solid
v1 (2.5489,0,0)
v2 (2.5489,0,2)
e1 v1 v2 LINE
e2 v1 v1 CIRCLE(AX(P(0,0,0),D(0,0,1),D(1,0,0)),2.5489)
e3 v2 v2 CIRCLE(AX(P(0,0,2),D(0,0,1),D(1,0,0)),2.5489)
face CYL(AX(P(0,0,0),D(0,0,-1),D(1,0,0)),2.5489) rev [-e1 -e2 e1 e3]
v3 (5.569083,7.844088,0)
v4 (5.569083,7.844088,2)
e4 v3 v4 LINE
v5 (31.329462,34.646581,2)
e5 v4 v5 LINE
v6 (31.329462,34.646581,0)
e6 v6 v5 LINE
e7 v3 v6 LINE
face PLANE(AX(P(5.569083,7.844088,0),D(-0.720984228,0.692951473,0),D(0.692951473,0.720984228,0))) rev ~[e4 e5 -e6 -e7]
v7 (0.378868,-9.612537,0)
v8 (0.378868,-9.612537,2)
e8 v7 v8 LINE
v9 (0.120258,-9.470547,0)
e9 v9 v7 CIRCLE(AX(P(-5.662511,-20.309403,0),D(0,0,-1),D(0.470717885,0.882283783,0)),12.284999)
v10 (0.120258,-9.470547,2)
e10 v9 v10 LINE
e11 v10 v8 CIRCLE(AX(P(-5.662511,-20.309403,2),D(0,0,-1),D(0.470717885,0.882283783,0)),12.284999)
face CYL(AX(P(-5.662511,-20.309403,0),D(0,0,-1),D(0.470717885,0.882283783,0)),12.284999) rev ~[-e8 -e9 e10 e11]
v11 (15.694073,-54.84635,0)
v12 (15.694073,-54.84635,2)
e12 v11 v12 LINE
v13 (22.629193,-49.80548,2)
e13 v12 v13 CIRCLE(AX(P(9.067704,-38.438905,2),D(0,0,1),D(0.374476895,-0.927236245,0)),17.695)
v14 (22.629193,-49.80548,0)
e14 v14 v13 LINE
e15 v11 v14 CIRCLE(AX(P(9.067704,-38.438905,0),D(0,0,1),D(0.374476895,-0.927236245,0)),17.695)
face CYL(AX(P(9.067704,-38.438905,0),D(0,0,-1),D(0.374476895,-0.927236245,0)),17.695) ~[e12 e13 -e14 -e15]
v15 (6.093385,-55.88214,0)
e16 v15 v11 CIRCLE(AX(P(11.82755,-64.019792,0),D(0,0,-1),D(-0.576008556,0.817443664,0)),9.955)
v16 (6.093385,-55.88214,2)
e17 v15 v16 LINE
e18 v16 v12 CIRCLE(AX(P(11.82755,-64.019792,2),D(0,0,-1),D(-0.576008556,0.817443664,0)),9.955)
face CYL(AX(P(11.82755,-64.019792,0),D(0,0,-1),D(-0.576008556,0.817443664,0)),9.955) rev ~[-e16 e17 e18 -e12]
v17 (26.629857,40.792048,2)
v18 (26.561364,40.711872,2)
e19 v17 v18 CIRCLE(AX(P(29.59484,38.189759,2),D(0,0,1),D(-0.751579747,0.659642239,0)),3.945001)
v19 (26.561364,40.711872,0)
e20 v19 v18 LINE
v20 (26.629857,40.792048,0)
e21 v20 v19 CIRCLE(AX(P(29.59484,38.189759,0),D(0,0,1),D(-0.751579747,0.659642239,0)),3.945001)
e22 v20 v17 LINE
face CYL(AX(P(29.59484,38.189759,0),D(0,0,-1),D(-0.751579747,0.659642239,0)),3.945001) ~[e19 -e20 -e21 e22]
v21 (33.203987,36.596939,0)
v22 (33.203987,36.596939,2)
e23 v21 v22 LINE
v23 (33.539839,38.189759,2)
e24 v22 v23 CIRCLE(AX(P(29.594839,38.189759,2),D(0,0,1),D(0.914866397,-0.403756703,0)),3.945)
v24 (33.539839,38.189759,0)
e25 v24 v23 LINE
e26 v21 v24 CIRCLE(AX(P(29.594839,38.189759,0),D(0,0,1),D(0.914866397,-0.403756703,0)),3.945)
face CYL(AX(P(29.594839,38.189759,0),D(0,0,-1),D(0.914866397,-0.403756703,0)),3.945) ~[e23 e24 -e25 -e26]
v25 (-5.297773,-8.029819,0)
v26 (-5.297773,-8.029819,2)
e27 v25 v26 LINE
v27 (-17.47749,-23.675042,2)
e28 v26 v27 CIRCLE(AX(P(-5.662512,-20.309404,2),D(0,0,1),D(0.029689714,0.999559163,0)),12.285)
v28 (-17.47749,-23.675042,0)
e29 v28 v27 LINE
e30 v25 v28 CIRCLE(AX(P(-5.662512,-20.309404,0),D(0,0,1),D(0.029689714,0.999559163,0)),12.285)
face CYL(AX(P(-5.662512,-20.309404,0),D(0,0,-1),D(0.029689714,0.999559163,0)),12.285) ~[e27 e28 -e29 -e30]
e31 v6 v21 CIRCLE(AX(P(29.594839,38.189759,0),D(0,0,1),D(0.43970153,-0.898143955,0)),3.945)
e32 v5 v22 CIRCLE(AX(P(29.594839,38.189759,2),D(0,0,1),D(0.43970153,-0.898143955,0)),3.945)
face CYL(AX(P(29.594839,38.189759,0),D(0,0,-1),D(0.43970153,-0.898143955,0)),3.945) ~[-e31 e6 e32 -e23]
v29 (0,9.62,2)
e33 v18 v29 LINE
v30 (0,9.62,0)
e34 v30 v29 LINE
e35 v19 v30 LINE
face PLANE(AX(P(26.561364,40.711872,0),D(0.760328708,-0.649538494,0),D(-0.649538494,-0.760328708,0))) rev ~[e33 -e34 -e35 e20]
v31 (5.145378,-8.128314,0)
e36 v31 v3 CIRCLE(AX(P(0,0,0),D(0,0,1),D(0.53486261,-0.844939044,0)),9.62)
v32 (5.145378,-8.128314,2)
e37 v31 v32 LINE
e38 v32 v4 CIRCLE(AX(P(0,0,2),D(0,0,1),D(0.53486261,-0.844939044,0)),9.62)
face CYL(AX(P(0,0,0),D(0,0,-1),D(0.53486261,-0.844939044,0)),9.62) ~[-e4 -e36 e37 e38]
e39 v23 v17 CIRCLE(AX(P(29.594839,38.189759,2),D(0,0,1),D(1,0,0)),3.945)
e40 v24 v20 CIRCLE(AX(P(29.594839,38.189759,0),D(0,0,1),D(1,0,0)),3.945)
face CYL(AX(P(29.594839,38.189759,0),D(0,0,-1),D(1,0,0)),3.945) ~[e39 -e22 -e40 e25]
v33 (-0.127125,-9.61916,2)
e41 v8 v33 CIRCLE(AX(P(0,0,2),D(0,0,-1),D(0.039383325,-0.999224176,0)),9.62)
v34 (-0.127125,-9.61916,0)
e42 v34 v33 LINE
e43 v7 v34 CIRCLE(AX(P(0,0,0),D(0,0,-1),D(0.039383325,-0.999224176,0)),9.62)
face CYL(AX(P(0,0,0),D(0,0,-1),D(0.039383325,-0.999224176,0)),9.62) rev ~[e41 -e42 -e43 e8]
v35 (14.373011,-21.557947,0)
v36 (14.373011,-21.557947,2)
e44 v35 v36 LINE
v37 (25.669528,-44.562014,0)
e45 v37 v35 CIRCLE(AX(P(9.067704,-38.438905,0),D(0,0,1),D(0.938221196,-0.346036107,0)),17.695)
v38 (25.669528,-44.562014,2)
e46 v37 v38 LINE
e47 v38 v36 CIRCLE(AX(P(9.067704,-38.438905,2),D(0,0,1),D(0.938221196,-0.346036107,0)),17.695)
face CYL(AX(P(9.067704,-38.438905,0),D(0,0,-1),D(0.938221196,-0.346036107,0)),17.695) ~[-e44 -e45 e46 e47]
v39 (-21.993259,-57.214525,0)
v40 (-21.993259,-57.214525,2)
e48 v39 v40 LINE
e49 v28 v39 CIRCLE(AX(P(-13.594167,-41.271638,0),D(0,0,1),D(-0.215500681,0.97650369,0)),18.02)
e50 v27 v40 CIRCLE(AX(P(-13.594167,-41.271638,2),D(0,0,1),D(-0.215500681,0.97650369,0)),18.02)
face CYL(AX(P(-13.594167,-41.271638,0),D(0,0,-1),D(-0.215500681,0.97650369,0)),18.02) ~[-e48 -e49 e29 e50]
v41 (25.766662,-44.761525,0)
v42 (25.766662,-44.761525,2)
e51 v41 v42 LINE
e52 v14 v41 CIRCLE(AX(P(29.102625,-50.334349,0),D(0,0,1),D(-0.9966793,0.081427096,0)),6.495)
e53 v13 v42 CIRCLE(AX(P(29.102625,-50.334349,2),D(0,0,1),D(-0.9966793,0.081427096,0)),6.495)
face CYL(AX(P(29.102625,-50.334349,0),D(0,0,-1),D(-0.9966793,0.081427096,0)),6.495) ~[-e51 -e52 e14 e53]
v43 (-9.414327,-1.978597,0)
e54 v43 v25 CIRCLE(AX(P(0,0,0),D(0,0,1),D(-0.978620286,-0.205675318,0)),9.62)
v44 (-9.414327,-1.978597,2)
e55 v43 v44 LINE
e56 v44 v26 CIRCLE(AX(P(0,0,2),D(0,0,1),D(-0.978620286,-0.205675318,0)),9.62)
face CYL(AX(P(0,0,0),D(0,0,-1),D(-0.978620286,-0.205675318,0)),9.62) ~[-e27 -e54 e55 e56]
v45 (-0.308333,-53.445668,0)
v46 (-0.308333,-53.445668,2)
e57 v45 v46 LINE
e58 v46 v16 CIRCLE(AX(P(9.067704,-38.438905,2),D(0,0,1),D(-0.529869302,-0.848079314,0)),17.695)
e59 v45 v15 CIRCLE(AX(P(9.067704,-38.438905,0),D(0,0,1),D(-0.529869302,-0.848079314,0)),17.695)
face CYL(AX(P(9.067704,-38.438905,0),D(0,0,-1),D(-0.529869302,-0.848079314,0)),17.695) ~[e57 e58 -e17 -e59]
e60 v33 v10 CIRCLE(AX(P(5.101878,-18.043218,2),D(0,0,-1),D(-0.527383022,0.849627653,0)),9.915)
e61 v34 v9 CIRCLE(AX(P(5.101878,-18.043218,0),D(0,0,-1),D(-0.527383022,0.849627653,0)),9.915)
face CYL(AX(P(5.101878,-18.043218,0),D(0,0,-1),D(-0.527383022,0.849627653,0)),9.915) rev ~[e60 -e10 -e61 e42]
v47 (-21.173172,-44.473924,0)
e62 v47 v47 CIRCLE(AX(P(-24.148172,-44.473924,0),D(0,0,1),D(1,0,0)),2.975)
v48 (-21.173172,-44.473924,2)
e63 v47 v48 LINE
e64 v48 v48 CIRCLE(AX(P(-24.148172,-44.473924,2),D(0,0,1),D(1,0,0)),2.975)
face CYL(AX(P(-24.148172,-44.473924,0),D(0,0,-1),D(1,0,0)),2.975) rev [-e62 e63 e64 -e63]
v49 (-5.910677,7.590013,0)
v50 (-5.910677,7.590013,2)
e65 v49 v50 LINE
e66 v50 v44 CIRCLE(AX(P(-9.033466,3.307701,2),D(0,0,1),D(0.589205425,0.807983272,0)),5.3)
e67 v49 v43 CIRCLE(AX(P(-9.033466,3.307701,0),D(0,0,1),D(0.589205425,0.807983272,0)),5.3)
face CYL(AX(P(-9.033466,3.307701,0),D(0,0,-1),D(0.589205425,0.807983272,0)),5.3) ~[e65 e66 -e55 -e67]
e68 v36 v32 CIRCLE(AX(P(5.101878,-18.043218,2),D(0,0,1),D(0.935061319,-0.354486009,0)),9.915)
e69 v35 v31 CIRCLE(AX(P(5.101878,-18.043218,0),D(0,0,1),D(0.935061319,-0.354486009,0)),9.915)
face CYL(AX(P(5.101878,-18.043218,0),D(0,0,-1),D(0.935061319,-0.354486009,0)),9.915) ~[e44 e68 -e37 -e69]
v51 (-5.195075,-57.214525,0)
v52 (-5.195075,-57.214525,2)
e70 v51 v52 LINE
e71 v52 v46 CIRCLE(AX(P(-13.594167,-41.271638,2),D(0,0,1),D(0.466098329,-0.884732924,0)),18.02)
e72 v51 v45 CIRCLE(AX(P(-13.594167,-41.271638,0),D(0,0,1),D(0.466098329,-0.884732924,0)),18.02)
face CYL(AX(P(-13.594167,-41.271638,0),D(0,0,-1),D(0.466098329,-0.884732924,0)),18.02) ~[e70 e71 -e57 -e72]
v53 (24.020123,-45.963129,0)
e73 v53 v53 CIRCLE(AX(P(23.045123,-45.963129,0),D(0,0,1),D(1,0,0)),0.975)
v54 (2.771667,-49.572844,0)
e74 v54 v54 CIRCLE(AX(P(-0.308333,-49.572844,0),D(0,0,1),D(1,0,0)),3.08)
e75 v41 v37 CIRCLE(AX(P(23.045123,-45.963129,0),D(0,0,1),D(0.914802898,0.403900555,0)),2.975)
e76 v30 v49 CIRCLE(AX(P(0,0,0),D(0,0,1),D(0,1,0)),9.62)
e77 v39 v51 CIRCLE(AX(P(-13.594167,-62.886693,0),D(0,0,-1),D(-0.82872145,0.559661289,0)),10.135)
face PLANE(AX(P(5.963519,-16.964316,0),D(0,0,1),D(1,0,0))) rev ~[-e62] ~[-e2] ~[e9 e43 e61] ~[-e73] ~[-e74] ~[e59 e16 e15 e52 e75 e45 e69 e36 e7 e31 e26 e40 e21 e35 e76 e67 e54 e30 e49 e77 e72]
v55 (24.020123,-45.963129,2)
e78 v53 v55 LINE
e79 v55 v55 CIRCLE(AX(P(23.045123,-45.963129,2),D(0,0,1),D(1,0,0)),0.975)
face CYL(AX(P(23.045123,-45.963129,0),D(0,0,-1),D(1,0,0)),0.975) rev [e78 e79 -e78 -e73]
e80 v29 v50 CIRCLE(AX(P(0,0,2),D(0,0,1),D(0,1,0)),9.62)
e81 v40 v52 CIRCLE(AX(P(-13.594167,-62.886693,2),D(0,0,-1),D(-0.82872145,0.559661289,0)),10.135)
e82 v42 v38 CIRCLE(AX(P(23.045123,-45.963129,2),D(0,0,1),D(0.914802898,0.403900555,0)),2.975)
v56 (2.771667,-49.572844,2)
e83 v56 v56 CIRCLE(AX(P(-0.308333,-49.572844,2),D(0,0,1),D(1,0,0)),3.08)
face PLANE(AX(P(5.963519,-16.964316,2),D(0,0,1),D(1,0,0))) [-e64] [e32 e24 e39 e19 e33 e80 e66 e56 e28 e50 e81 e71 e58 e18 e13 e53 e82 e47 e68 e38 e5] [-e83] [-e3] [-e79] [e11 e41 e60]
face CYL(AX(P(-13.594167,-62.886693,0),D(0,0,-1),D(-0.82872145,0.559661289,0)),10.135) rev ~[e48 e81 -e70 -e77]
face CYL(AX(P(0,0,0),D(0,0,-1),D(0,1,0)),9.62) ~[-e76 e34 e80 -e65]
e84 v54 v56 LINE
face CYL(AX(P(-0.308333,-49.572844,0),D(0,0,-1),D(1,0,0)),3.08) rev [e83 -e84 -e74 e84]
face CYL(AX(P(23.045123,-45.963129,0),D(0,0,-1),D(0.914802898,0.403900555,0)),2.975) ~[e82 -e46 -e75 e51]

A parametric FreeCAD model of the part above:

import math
import FreeCAD as App
import Part
import Sketcher

doc = App.newDocument("Part")
params = doc.addObject("Spreadsheet::Sheet", "Params")
for row, (alias, value) in enumerate([
    ("sketch1_radius", "5.3 mm"),
    ("sketch1_diameter", "5.95 mm"),
    ("sketch1_diameter2", "6.16 mm"),
    ("sketch1_diameter3", "1.95 mm"),
    ("sketch1_radius2", "9.62 mm"),
    ("pad1_length", "2 mm"),
], start=1):
    params.set(f"A{row}", alias)
    params.set(f"B{row}", "=" + value)
    params.setAlias(f"B{row}", alias)

body = doc.addObject("PartDesign::Body", "Body")

# Sketch on XY plane
sketch1 = doc.addObject("Sketcher::SketchObject", "Sketch")
body.addObject(sketch1)
sketch1.AttachmentSupport = (doc.XY_Plane, [""])
sketch1.MapMode = "FlatFace"
sketch1.addGeometry(Part.ArcOfCircle(Part.Circle(App.Vector(0, 0, 0), App.Vector(0, 0, 1), 9.62), math.radians(90), math.radians(127.909465)), False)
sketch1.addGeometry(Part.ArcOfCircle(Part.Circle(App.Vector(-9.033466, 3.307701, 0), App.Vector(0, 0, 1), 5.3), math.radians(53.899357), math.radians(265.879142)), False)
sketch1.addGeometry(Part.ArcOfCircle(Part.Circle(App.Vector(0, 0, 0), App.Vector(0, 0, 1), 9.62), math.radians(-168.130966), math.radians(-123.415331)), False)
sketch1.addGeometry(Part.ArcOfCircle(Part.Circle(App.Vector(-5.662512, -20.309404, 0), App.Vector(0, 0, 1), 12.285), math.radians(88.298655), math.radians(195.900238)), False)
sketch1.addGeometry(Part.ArcOfCircle(Part.Circle(App.Vector(-13.594167, -41.271638, 0), App.Vector(0, 0, 1), 18.02), math.radians(102.444903), math.radians(242.218673)), False)
sketch1.addGeometry(Part.ArcOfCircle(Part.Circle(App.Vector(-13.594167, -62.886693, 0), App.Vector(0, 0, 1), 10.135), math.radians(34.032377), math.radians(145.967623)), False)
sketch1.addGeometry(Part.ArcOfCircle(Part.Circle(App.Vector(-13.594167, -41.271638, 0), App.Vector(0, 0, 1), 18.02), math.radians(-62.218673), math.radians(-42.499546)), False)
sketch1.addGeometry(Part.ArcOfCircle(Part.Circle(App.Vector(9.067704, -38.438905, 0), App.Vector(0, 0, 1), 17.695), math.radians(-121.996625), math.radians(-99.676677)), False)
sketch1.addGeometry(Part.ArcOfCircle(Part.Circle(App.Vector(11.82755, -64.019792, 0), App.Vector(0, 0, 1), 9.955), math.radians(67.145016), math.radians(125.170293)), False)
sketch1.addGeometry(Part.ArcOfCircle(Part.Circle(App.Vector(9.067704, -38.438905, 0), App.Vector(0, 0, 1), 17.695), math.radians(-68.008015), math.radians(-39.968088)), False)
sketch1.addGeometry(Part.ArcOfCircle(Part.Circle(App.Vector(29.102625, -50.334349, 0), App.Vector(0, 0, 1), 6.495), math.radians(175.3294), math.radians(480.905276)), False)
sketch1.addGeometry(Part.ArcOfCircle(Part.Circle(App.Vector(23.045123, -45.963129, 0), App.Vector(0, 0, 1), 2.975), math.radians(23.822249), math.radians(28.096829)), False)
sketch1.addGeometry(Part.ArcOfCircle(Part.Circle(App.Vector(9.067704, -38.438905, 0), App.Vector(0, 0, 1), 17.695), math.radians(-20.245056), math.radians(72.553235)), False)
sketch1.addGeometry(Part.ArcOfCircle(Part.Circle(App.Vector(5.101878, -18.043218, 0), App.Vector(0, 0, 1), 9.915), math.radians(-20.761946), math.radians(89.748623)), False)
sketch1.addGeometry(Part.ArcOfCircle(Part.Circle(App.Vector(0, 0, 0), App.Vector(0, 0, 1), 9.62), math.radians(-57.665406), math.radians(54.626316)), False)
sketch1.addGeometry(Part.LineSegment(App.Vector(5.569083, 7.844088, 0), App.Vector(31.329462, 34.646581, 0)), False)
sketch1.addGeometry(Part.ArcOfCircle(Part.Circle(App.Vector(29.594839, 38.189759, 0), App.Vector(0, 0, 1), 3.945), math.radians(-63.915161), math.radians(-23.813239)), False)
sketch1.addGeometry(Part.ArcOfCircle(Part.Circle(App.Vector(29.594839, 38.189759, 0), App.Vector(0, 0, 1), 3.945), math.radians(-23.813239), math.radians(0)), False)
sketch1.addGeometry(Part.ArcOfCircle(Part.Circle(App.Vector(29.594839, 38.189759, 0), App.Vector(0, 0, 1), 3.945), math.radians(0), math.radians(138.727406)), False)
sketch1.addGeometry(Part.ArcOfCircle(Part.Circle(App.Vector(29.59484, 38.189759, 0), App.Vector(0, 0, 1), 3.945001), math.radians(138.727406), math.radians(140.258963)), False)
sketch1.addGeometry(Part.LineSegment(App.Vector(26.561364, 40.711872, 0), App.Vector(0, 9.62, 0)), False)
sketch1.addGeometry(Part.Circle(App.Vector(-24.148172, -44.473924, 0), App.Vector(0, 0, 1), 2.975), False)
sketch1.addGeometry(Part.Circle(App.Vector(-0.308333, -49.572844, 0), App.Vector(0, 0, 1), 3.08), False)
sketch1.addGeometry(Part.Circle(App.Vector(23.045123, -45.963129, 0), App.Vector(0, 0, 1), 0.975), False)
sketch1.addGeometry(Part.ArcOfCircle(Part.Circle(App.Vector(-5.662511, -20.309403, 0), App.Vector(0, 0, 1), 12.284999), math.radians(60.543097), math.radians(61.919094)), False)
sketch1.addGeometry(Part.ArcOfCircle(Part.Circle(App.Vector(0, 0, 0), App.Vector(0, 0, 1), 9.62), math.radians(-90.757166), math.radians(-87.742918)), False)
sketch1.addGeometry(Part.ArcOfCircle(Part.Circle(App.Vector(5.101878, -18.043218, 0), App.Vector(0, 0, 1), 9.915), math.radians(120.161076), math.radians(121.828806)), False)
sketch1.addGeometry(Part.Circle(App.Vector(0, 0, 0), App.Vector(0, 0, 1), 2.5489), False)
sketch1.addConstraint(Sketcher.Constraint("Coincident", 0, 2, 1, 1))
sketch1.addConstraint(Sketcher.Constraint("Coincident", 1, 2, 2, 1))
sketch1.addConstraint(Sketcher.Constraint("Coincident", 2, 2, 3, 1))
sketch1.addConstraint(Sketcher.Constraint("Coincident", 3, 2, 4, 1))
sketch1.addConstraint(Sketcher.Constraint("Coincident", 4, 2, 5, 2))
sketch1.addConstraint(Sketcher.Constraint("Coincident", 5, 1, 6, 1))
sketch1.addConstraint(Sketcher.Constraint("Coincident", 6, 2, 7, 1))
sketch1.addConstraint(Sketcher.Constraint("Coincident", 7, 2, 8, 2))
sketch1.addConstraint(Sketcher.Constraint("Coincident", 8, 1, 9, 1))
sketch1.addConstraint(Sketcher.Constraint("Coincident", 9, 2, 10, 1))
sketch1.addConstraint(Sketcher.Constraint("Coincident", 10, 2, 11, 1))
sketch1.addConstraint(Sketcher.Constraint("Coincident", 11, 2, 12, 1))
sketch1.addConstraint(Sketcher.Constraint("Coincident", 12, 2, 13, 1))
sketch1.addConstraint(Sketcher.Constraint("Coincident", 13, 2, 14, 1))
sketch1.addConstraint(Sketcher.Constraint("Coincident", 14, 2, 15, 1))
sketch1.addConstraint(Sketcher.Constraint("Coincident", 15, 2, 16, 1))
sketch1.addConstraint(Sketcher.Constraint("Tangent", 16, 2, 17, 1))
sketch1.addConstraint(Sketcher.Constraint("Tangent", 17, 2, 18, 1))
sketch1.addConstraint(Sketcher.Constraint("Tangent", 18, 2, 19, 1))
sketch1.addConstraint(Sketcher.Constraint("Coincident", 19, 2, 20, 1))
sketch1.addConstraint(Sketcher.Constraint("Coincident", 20, 2, 0, 1))
sketch1.addConstraint(Sketcher.Constraint("Coincident", 24, 1, 25, 2))
sketch1.addConstraint(Sketcher.Constraint("Coincident", 25, 1, 26, 2))
sketch1.addConstraint(Sketcher.Constraint("Coincident", 26, 1, 24, 2))
sketch1.addConstraint(Sketcher.Constraint("Coincident", 0, 3, -1, 1))
sketch1.addConstraint(Sketcher.Constraint("Coincident", 2, 3, -1, 1))
sketch1.addConstraint(Sketcher.Constraint("Coincident", 14, 3, -1, 1))
sketch1.addConstraint(Sketcher.Constraint("Coincident", 25, 3, -1, 1))
sketch1.addConstraint(Sketcher.Constraint("Coincident", 27, 3, -1, 1))
sketch1.addConstraint(Sketcher.Constraint("Coincident", 6, 3, 4, 3))
sketch1.addConstraint(Sketcher.Constraint("Coincident", 9, 3, 7, 3))
sketch1.addConstraint(Sketcher.Constraint("Coincident", 12, 3, 7, 3))
sketch1.addConstraint(Sketcher.Constraint("Coincident", 18, 3, 16, 3))
sketch1.addConstraint(Sketcher.Constraint("Coincident", 23, 3, 11, 3))
sketch1.addConstraint(Sketcher.Constraint("Coincident", 24, 3, 3, 3))
sketch1.addConstraint(Sketcher.Constraint("Coincident", 26, 3, 13, 3))
sketch1.addConstraint(Sketcher.Constraint("Equal", 0, 2))
sketch1.addConstraint(Sketcher.Constraint("Equal", 4, 6))
sketch1.addConstraint(Sketcher.Constraint("Equal", 7, 9))
sketch1.addConstraint(Sketcher.Constraint("Equal", 9, 12))
sketch1.addConstraint(Sketcher.Constraint("Equal", 2, 14))
sketch1.addConstraint(Sketcher.Constraint("Equal", 18, 19))
sketch1.addConstraint(Sketcher.Constraint("Equal", 11, 21))
sketch1.addConstraint(Sketcher.Constraint("Equal", 3, 24))
sketch1.addConstraint(Sketcher.Constraint("Equal", 14, 25))
sketch1.addConstraint(Sketcher.Constraint("Equal", 13, 26))
sketch1.addConstraint(Sketcher.Constraint("PointOnObject", 20, 2, -2))
sketch1.addConstraint(Sketcher.Constraint("Horizontal", 4, 2, 5, 1))
sketch1.addConstraint(Sketcher.Constraint("Horizontal", 19, 3, 17, 2))
sketch1.addConstraint(Sketcher.Constraint("Vertical", 22, 3, 6, 2))
sketch1.addConstraint(Sketcher.Constraint("Radius", 1, 5.3))
sketch1.addConstraint(Sketcher.Constraint("Diameter", 21, 5.95))
sketch1.addConstraint(Sketcher.Constraint("Diameter", 22, 6.16))
sketch1.addConstraint(Sketcher.Constraint("Diameter", 23, 1.95))
sketch1.addConstraint(Sketcher.Constraint("Radius", 0, 9.62))
sketch1.addConstraint(Sketcher.Constraint("Radius", 4, 18.02))
sketch1.addConstraint(Sketcher.Constraint("Radius", 3, 12.285))
sketch1.addConstraint(Sketcher.Constraint("Radius", 5, 10.135))
sketch1.addConstraint(Sketcher.Constraint("Radius", 7, 17.695))
sketch1.addConstraint(Sketcher.Constraint("Radius", 8, 9.955))
sketch1.addConstraint(Sketcher.Constraint("Radius", 10, 6.495))
sketch1.addConstraint(Sketcher.Constraint("Radius", 13, 9.915))
sketch1.addConstraint(Sketcher.Constraint("Radius", 16, 3.945))
sketch1.addConstraint(Sketcher.Constraint("Diameter", 27, 5.0978))
sketch1.addConstraint(Sketcher.Constraint("DistanceY", 8, 1, 10, 3, 4.512001))
sketch1.addConstraint(Sketcher.Constraint("DistanceY", -1, 1, 1, 3, 3.307701))
sketch1.addConstraint(Sketcher.Constraint("DistanceX", 4, 3, 1, 3, 4.560701))
sketch1.addConstraint(Sketcher.Constraint("DistanceY", 7, 3, 3, 3, 18.129501))
sketch1.addConstraint(Sketcher.Constraint("DistanceY", 8, 3, 5, 3, 1.133099))
sketch1.addConstraint(Sketcher.Constraint("DistanceY", 4, 2, 21, 3, 12.740602))
sketch1.addConstraint(Sketcher.Constraint("Distance", 20, 40.892671))
sketch1.addConstraint(Sketcher.Constraint("DistanceX", 3, 3, -1, 1, 5.662512))
sketch1.addConstraint(Sketcher.Constraint("DistanceY", 4, 3, -1, 1, 41.271638))
sketch1.addConstraint(Sketcher.Constraint("DistanceX", -1, 1, 8, 3, 11.82755))
sketch1.addConstraint(Sketcher.Constraint("DistanceY", 8, 3, -1, 1, 64.019792))
sketch1.addConstraint(Sketcher.Constraint("DistanceY", 10, 3, -1, 1, 50.334349))
sketch1.addConstraint(Sketcher.Constraint("DistanceY", 11, 3, -1, 1, 45.963129))
sketch1.addConstraint(Sketcher.Constraint("DistanceY", 13, 3, -1, 1, 18.043218))
sketch1.addConstraint(Sketcher.Constraint("DistanceX", -1, 1, 16, 3, 29.594839))
sketch1.addConstraint(Sketcher.Constraint("DistanceY", -1, 1, 16, 3, 38.189759))
sketch1.addConstraint(Sketcher.Constraint("DistanceX", 21, 3, -1, 1, 24.148172))
sketch1.addConstraint(Sketcher.Constraint("DistanceY", 2, 2, -1, 1, 8.029819))
sketch1.addConstraint(Sketcher.Constraint("DistanceX", 3, 2, -1, 1, 17.47749))
sketch1.addConstraint(Sketcher.Constraint("DistanceY", 9, 2, -1, 1, 49.80548))
sketch1.addConstraint(Sketcher.Constraint("DistanceX", -1, 1, 10, 2, 25.766662))
sketch1.addConstraint(Sketcher.Constraint("DistanceX", -1, 1, 12, 2, 14.373011))
sketch1.addConstraint(Sketcher.Constraint("DistanceY", -1, 1, 14, 2, 7.844088))
sketch1.addConstraint(Sketcher.Constraint("DistanceY", -1, 1, 15, 2, 34.646581))
sketch1.addConstraint(Sketcher.Constraint("DistanceY", -1, 1, 16, 2, 36.596939))
sketch1.addConstraint(Sketcher.Constraint("DistanceY", 22, 3, 12, 3, 11.133939))
sketch1.addConstraint(Sketcher.Constraint("DistanceY", 16, 3, 18, 2, 2.602289))
sketch1.setExpression("Constraints[50]", "Params.sketch1_radius")
sketch1.setExpression("Constraints[51]", "Params.sketch1_diameter")
sketch1.setExpression("Constraints[52]", "Params.sketch1_diameter2")
sketch1.setExpression("Constraints[53]", "Params.sketch1_diameter3")
sketch1.setExpression("Constraints[54]", "Params.sketch1_radius2")
pad1 = doc.addObject("PartDesign::Pad", "Pad")
body.addObject(pad1)
pad1.Profile = sketch1
pad1.setExpression("Length", "Params.pad1_length")

doc.recompute()
